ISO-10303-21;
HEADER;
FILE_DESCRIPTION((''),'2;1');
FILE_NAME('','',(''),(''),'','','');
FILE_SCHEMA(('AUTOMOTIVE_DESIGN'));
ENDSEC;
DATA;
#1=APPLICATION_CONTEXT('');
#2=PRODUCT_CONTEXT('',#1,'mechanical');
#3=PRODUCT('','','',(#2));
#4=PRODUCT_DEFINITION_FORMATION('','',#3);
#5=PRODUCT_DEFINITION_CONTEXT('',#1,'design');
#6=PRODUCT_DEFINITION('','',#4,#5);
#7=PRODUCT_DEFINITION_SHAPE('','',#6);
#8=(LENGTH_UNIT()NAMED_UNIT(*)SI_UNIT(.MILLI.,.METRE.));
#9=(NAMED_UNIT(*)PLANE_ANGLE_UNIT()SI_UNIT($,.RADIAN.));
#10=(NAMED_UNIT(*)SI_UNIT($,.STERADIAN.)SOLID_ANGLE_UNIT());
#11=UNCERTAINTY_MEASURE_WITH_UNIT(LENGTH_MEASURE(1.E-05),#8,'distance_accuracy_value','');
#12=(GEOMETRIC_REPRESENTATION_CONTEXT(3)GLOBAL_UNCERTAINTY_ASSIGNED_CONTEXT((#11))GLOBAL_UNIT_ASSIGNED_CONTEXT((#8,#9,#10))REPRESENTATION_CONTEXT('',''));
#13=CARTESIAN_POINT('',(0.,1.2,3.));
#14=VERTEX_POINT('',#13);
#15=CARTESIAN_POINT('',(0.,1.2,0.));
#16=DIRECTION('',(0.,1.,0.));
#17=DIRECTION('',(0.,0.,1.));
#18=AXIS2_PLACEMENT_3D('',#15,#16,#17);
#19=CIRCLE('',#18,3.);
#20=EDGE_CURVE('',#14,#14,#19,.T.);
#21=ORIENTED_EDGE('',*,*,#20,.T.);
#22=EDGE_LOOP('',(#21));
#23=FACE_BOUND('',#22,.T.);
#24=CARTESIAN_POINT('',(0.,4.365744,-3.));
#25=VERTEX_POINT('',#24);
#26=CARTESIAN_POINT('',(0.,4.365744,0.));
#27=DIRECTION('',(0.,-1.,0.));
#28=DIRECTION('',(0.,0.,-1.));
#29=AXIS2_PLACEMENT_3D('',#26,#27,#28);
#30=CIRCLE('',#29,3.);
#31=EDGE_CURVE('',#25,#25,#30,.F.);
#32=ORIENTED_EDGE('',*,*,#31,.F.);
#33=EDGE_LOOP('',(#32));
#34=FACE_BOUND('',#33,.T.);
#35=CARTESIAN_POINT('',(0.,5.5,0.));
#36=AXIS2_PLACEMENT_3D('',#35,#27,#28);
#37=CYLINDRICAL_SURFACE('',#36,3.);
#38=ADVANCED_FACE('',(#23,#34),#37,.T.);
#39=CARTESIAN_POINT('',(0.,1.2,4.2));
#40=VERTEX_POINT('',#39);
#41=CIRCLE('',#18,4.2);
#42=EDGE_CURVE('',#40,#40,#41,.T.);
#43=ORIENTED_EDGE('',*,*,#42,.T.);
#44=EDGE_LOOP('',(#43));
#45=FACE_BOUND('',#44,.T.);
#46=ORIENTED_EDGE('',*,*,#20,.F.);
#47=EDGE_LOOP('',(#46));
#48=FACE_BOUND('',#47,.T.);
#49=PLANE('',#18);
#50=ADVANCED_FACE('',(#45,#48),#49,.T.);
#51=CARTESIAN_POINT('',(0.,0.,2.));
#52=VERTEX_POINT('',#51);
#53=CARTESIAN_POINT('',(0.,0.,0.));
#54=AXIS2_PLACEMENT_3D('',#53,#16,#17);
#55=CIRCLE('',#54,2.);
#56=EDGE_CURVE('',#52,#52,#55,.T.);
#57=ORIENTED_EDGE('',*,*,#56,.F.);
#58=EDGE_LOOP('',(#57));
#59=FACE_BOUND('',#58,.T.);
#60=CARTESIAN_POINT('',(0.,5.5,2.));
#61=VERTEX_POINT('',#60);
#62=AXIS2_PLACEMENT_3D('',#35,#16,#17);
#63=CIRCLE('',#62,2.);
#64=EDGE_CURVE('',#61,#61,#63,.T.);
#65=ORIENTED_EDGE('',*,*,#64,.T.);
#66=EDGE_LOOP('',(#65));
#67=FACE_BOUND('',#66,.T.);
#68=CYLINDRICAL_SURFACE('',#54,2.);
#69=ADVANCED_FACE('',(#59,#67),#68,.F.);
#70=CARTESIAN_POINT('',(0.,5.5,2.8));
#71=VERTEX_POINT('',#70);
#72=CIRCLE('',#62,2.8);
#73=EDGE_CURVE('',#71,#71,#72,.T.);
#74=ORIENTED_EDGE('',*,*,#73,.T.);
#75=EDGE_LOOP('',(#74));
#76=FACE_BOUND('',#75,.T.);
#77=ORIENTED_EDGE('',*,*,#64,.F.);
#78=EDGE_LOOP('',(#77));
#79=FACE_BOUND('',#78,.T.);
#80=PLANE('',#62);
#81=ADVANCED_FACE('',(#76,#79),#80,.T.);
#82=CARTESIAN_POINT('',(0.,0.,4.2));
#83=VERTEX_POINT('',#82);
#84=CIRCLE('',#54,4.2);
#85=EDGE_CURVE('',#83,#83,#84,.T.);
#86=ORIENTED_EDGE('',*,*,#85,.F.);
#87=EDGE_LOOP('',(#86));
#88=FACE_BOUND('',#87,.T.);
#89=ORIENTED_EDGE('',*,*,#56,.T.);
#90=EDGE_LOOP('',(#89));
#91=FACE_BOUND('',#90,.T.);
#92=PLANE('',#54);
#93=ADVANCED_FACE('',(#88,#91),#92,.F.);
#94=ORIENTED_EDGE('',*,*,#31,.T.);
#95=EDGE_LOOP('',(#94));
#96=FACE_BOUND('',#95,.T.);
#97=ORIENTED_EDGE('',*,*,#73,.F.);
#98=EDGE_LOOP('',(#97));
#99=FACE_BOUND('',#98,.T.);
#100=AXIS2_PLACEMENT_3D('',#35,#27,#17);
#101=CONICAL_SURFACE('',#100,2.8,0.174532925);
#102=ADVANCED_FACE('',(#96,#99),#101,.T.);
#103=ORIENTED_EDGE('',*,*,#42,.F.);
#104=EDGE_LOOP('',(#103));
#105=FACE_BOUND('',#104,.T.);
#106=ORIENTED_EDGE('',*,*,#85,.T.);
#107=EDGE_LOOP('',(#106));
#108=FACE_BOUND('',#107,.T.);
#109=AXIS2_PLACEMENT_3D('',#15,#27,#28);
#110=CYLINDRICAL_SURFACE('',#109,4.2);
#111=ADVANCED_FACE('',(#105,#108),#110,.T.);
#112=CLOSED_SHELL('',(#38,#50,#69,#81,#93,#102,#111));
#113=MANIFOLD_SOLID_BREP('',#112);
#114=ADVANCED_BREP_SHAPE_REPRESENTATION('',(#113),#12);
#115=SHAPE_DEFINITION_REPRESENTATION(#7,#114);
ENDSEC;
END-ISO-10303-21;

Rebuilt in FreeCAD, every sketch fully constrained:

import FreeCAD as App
import Part
import Sketcher
from FreeCAD import Vector

doc = App.newDocument("Part")
body = doc.addObject("PartDesign::Body", "Body")

# Sketch on XZ plane
sketch1 = body.newObject("Sketcher::SketchObject", "Sketch")
sketch1.AttachmentSupport = (doc.getObject("XZ_Plane"), [""])
sketch1.MapMode = "FlatFace"
sketch1.addGeometry(Part.Circle(Vector(0, 0, 0), Vector(0, 0, 1), 4.2), False)
sketch1.addConstraint([
    Sketcher.Constraint("Coincident", 0, 3, -1, 1),
    Sketcher.Constraint("Diameter", 0, 8.4),
])
pad1 = body.newObject("PartDesign::Pad", "Pad")
pad1.Profile = sketch1
pad1.Length = 1.2
pad1.Reversed = True

# Sketch on XZ plane
sketch2 = body.newObject("Sketcher::SketchObject", "Sketch001")
sketch2.AttachmentSupport = (doc.getObject("XZ_Plane"), [""])
sketch2.MapMode = "FlatFace"
sketch2.AttachmentOffset = App.Placement(Vector(0, 0, -1.2), App.Rotation())
sketch2.addGeometry(Part.Circle(Vector(0, 0, 0), Vector(0, 0, 1), 3), False)
sketch2.addConstraint([
    Sketcher.Constraint("Coincident", 0, 3, -1, 1),
    Sketcher.Constraint("Diameter", 0, 6.0),
])
pad2 = body.newObject("PartDesign::Pad", "Pad001")
pad2.Profile = sketch2
pad2.Length = 4.3
pad2.Reversed = True

# Sketch on XZ plane
sketch3 = body.newObject("Sketcher::SketchObject", "Sketch002")
sketch3.AttachmentSupport = (doc.getObject("XZ_Plane"), [""])
sketch3.MapMode = "FlatFace"
sketch3.AttachmentOffset = App.Placement(Vector(0, 0, -5.5), App.Rotation())
sketch3.addGeometry([
    Part.LineSegment(Vector(-7.267, -7.267, 0), Vector(-7.267, 7.267, 0)),  # 0
    Part.LineSegment(Vector(-7.267, 7.267, 0), Vector(7.267, 7.267, 0)),  # 1
    Part.LineSegment(Vector(7.267, 7.267, 0), Vector(7.267, -7.267, 0)),  # 2
    Part.LineSegment(Vector(7.267, -7.267, 0), Vector(-7.267, -7.267, 0)),  # 3
    Part.Circle(Vector(0, 0, 0), Vector(0, 0, 1), 2.8),  # 4
], False)
sketch3.addConstraint([
    Sketcher.Constraint("Coincident", 0, 2, 1, 1),
    Sketcher.Constraint("Coincident", 1, 2, 2, 1),
    Sketcher.Constraint("Coincident", 2, 2, 3, 1),
    Sketcher.Constraint("Coincident", 3, 2, 0, 1),
    Sketcher.Constraint("Vertical", 0),
    Sketcher.Constraint("Horizontal", 1),
    Sketcher.Constraint("Vertical", 2),
    Sketcher.Constraint("Horizontal", 3),
    Sketcher.Constraint("Coincident", 4, 3, -1, 1),
    Sketcher.Constraint("Symmetric", 0, 2, 2, 2, -1, 1),
    Sketcher.Constraint("Equal", 3, 0),
    Sketcher.Constraint("Diameter", 4, 5.6),
    Sketcher.Constraint("DistanceX", 1, 1, 1, 2, 14.534),
])
pocket1 = body.newObject("PartDesign::Pocket", "Pocket")
pocket1.Profile = sketch3
pocket1.Length = 4.3
pocket1.Reversed = True
pocket1.TaperAngle = 10

# Sketch on XZ plane
sketch4 = body.newObject("Sketcher::SketchObject", "Sketch003")
sketch4.AttachmentSupport = (doc.getObject("XZ_Plane"), [""])
sketch4.MapMode = "FlatFace"
sketch4.AttachmentOffset = App.Placement(Vector(0, 0, -5.5), App.Rotation())
sketch4.addGeometry(Part.Circle(Vector(0, 0, 0), Vector(0, 0, 1), 2), False)
sketch4.addConstraint([
    Sketcher.Constraint("Coincident", 0, 3, -1, 1),
    Sketcher.Constraint("Diameter", 0, 4.0),
])
pocket2 = body.newObject("PartDesign::Pocket", "Pocket001")
pocket2.Profile = sketch4
pocket2.Type = "ThroughAll"
pocket2.Reversed = True

doc.recompute()
